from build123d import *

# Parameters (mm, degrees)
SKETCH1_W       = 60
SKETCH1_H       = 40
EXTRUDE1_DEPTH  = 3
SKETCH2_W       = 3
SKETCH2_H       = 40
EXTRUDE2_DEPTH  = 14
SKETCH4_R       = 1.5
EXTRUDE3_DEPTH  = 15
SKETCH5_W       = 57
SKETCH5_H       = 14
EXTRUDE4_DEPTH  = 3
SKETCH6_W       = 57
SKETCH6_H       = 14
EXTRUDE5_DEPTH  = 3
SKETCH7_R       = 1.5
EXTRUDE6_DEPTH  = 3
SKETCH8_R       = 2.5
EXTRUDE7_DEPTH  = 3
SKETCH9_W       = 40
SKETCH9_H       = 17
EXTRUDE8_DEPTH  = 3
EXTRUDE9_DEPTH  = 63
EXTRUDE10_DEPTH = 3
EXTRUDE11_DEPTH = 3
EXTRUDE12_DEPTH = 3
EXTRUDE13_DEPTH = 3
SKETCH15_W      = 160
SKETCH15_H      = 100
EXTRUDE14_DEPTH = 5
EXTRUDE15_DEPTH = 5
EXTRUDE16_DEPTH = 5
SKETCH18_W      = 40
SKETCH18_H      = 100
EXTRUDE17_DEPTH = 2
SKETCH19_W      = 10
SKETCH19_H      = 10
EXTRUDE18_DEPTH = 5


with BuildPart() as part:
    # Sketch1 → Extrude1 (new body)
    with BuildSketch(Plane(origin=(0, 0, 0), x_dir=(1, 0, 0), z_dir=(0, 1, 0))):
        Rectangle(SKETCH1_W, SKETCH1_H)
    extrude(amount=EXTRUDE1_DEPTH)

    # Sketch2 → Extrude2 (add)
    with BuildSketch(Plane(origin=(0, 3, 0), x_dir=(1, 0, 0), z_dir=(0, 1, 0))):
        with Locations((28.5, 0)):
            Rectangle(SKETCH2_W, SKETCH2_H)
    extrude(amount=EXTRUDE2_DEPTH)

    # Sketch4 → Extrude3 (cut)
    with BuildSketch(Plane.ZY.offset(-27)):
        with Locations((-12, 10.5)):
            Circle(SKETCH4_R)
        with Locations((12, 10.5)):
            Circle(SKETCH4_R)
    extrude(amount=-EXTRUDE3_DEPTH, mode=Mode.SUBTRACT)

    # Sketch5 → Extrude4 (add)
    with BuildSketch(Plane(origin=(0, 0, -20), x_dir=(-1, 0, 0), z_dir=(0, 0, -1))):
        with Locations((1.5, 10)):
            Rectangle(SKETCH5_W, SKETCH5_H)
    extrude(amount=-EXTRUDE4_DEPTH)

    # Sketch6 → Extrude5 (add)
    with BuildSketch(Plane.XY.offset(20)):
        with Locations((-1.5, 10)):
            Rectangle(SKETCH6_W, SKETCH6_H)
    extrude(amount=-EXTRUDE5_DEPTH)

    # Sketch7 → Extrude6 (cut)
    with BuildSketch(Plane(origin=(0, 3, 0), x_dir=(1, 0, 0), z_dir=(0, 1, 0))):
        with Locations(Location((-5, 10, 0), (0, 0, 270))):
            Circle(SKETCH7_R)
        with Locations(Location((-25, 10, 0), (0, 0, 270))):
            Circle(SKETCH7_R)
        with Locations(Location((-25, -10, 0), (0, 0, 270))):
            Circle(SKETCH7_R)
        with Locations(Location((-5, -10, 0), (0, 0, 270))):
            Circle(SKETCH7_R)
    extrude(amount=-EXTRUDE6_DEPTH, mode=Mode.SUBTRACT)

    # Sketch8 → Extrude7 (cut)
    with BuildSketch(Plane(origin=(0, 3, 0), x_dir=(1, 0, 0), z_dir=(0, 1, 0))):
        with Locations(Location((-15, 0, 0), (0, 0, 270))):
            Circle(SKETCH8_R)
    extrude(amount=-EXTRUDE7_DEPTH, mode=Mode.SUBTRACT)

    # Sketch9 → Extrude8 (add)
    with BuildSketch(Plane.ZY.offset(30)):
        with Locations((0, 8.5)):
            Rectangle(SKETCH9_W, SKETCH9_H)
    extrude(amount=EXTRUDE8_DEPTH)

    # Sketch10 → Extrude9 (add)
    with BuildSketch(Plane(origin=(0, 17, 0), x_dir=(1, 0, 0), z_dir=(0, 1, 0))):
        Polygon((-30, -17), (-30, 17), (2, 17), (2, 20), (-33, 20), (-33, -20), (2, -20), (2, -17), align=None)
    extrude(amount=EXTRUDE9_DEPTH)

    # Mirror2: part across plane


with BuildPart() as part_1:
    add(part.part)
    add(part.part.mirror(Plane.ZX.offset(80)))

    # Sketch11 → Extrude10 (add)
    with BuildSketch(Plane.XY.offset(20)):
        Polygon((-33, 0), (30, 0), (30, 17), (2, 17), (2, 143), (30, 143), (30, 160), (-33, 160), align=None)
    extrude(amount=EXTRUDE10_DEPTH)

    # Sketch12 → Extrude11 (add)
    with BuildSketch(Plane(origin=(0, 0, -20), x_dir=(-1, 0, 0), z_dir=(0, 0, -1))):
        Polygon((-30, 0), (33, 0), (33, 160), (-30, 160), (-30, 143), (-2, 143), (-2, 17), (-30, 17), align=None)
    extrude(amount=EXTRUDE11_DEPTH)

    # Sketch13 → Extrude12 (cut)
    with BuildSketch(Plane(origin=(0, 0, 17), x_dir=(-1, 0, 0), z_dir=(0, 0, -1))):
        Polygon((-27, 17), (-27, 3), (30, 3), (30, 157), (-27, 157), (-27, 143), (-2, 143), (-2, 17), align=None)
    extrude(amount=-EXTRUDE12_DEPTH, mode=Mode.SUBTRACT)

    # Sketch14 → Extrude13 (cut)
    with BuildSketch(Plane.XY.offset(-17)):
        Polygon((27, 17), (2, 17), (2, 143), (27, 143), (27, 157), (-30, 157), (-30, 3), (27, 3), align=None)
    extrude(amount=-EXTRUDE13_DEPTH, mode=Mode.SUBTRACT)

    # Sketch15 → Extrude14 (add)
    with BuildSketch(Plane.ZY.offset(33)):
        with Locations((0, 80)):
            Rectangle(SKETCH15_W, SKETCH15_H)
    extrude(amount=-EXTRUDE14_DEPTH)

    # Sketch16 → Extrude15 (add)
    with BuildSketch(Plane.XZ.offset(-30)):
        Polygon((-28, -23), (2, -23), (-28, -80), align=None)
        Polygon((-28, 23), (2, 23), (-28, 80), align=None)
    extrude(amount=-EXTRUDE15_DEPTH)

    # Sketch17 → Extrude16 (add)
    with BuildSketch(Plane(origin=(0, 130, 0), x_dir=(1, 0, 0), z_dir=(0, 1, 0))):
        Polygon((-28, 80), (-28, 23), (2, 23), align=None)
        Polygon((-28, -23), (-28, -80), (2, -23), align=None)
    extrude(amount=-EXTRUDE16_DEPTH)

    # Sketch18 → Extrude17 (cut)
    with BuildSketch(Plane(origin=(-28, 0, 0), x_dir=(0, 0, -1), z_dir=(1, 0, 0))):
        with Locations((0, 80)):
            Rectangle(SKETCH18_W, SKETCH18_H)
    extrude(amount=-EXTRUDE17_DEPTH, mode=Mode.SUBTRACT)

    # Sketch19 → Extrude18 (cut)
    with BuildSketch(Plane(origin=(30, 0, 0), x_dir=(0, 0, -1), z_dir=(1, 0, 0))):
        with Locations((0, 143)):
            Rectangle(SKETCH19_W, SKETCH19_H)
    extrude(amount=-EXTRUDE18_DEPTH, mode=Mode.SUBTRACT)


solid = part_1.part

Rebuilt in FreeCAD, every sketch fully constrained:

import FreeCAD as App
import Part
import Sketcher
from FreeCAD import Vector


def add_polygon(sketch, points):
    """Adds a closed chain of lines whose ends are joined by coincident constraints."""
    first, n = sketch.GeometryCount, len(points)
    for a, b in zip(points, points[1:] + points[:1]):
        sketch.addGeometry(Part.LineSegment(App.Vector(*a, 0), App.Vector(*b, 0)), False)
    for i in range(n):
        sketch.addConstraint(Sketcher.Constraint("Coincident", first + i, 2, first + (i + 1) % n, 1))

doc = App.newDocument("Part")
body = doc.addObject("PartDesign::Body", "Body")

sketch1 = doc.addObject("Sketcher::SketchObject", "Sketch")
body.addObject(sketch1)
sketch1.AttachmentSupport = (doc.XZ_Plane, [""])
sketch1.MapMode = "FlatFace"
add_polygon(sketch1, [(-30, -20), (-30, 20), (30, 20), (30, -20)])
sketch1.addConstraint([
    Sketcher.Constraint("Vertical", 0),
    Sketcher.Constraint("Horizontal", 1),
    Sketcher.Constraint("Vertical", 2),
    Sketcher.Constraint("Horizontal", 3),
    Sketcher.Constraint("Symmetric", 0, 2, 2, 2, -1, 1),
    Sketcher.Constraint("DistanceX", 1, 1, 1, 2, 60.0),
    Sketcher.Constraint("DistanceY", 0, 1, 0, 2, 40.0),
])
pad1 = doc.addObject("PartDesign::Pad", "Pad")
body.addObject(pad1)
pad1.Profile = sketch1
pad1.Length = 3
pad1.Reversed = True

sketch2 = doc.addObject("Sketcher::SketchObject", "Sketch001")
body.addObject(sketch2)
sketch2.AttachmentSupport = (doc.XZ_Plane, [""])
sketch2.MapMode = "FlatFace"
sketch2.AttachmentOffset = App.Placement(Vector(0, 0, -3), App.Rotation())
add_polygon(sketch2, [(27, -20), (27, 20), (30, 20), (30, -20)])
sketch2.addConstraint([
    Sketcher.Constraint("Vertical", 0),
    Sketcher.Constraint("Horizontal", 1),
    Sketcher.Constraint("Vertical", 2),
    Sketcher.Constraint("Horizontal", 3),
    Sketcher.Constraint("DistanceX", 1, 1, 1, 2, 3.0),
    Sketcher.Constraint("DistanceY", 0, 1, 0, 2, 40.0),
    Sketcher.Constraint("DistanceX", -1, 1, 0, 2, 27.0),
    Sketcher.Constraint("DistanceY", -1, 1, 0, 2, 20.0),
])
pad2 = doc.addObject("PartDesign::Pad", "Pad001")
body.addObject(pad2)
pad2.Profile = sketch2
pad2.Length = 14
pad2.Reversed = True

sketch3 = doc.addObject("Sketcher::SketchObject", "Sketch002")
body.addObject(sketch3)
sketch3.AttachmentSupport = (doc.YZ_Plane, [""])
sketch3.MapMode = "FlatFace"
sketch3.AttachmentOffset = App.Placement(Vector(0, 0, 27), App.Rotation())
sketch3.addGeometry([
    Part.Circle(Vector(10.5, -12, 0), Vector(0, 0, 1), 1.5),
    Part.Circle(Vector(10.5, 12, 0), Vector(0, 0, 1), 1.5),
], False)
sketch3.addConstraint([
    Sketcher.Constraint("Equal", 0, 1),
    Sketcher.Constraint("Symmetric", 0, 3, 1, 3, -1),
    Sketcher.Constraint("Diameter", 0, 3.0),
    Sketcher.Constraint("DistanceY", 0, 3, -1, 1, 12.0),
    Sketcher.Constraint("DistanceX", -1, 1, 0, 3, 10.5),
])
pocket1 = doc.addObject("PartDesign::Pocket", "Pocket")
body.addObject(pocket1)
pocket1.Profile = sketch3
pocket1.Length = 15
pocket1.Reversed = True

sketch4 = doc.addObject("Sketcher::SketchObject", "Sketch003")
body.addObject(sketch4)
sketch4.AttachmentSupport = (doc.XY_Plane, [""])
sketch4.MapMode = "FlatFace"
sketch4.AttachmentOffset = App.Placement(Vector(0, 0, -20), App.Rotation())
add_polygon(sketch4, [(27, 17), (27, 3), (-30, 3), (-30, 17)])
sketch4.addConstraint([
    Sketcher.Constraint("Vertical", 0),
    Sketcher.Constraint("Horizontal", 1),
    Sketcher.Constraint("Vertical", 2),
    Sketcher.Constraint("Horizontal", 3),
    Sketcher.Constraint("DistanceX", 1, 2, 1, 1, 57.0),
    Sketcher.Constraint("DistanceY", 0, 2, 0, 1, 14.0),
    Sketcher.Constraint("DistanceX", -1, 1, 0, 2, 27.0),
    Sketcher.Constraint("DistanceY", -1, 1, 0, 2, 3.0),
])
pad3 = doc.addObject("PartDesign::Pad", "Pad002")
body.addObject(pad3)
pad3.Profile = sketch4
pad3.Length = 3

sketch5 = doc.addObject("Sketcher::SketchObject", "Sketch004")
body.addObject(sketch5)
sketch5.AttachmentSupport = (doc.XY_Plane, [""])
sketch5.MapMode = "FlatFace"
sketch5.AttachmentOffset = App.Placement(Vector(0, 0, 20), App.Rotation())
add_polygon(sketch5, [(-30, 17), (-30, 3), (27, 3), (27, 17)])
sketch5.addConstraint([
    Sketcher.Constraint("Vertical", 0),
    Sketcher.Constraint("Horizontal", 1),
    Sketcher.Constraint("Vertical", 2),
    Sketcher.Constraint("Horizontal", 3),
    Sketcher.Constraint("DistanceX", 1, 1, 1, 2, 57.0),
    Sketcher.Constraint("DistanceY", 0, 2, 0, 1, 14.0),
    Sketcher.Constraint("DistanceX", 0, 2, -1, 1, 30.0),
    Sketcher.Constraint("DistanceY", -1, 1, 0, 2, 3.0),
])
pad4 = doc.addObject("PartDesign::Pad", "Pad003")
body.addObject(pad4)
pad4.Profile = sketch5
pad4.Length = 3
pad4.Reversed = True

sketch6 = doc.addObject("Sketcher::SketchObject", "Sketch005")
body.addObject(sketch6)
sketch6.AttachmentSupport = (doc.XZ_Plane, [""])
sketch6.MapMode = "FlatFace"
sketch6.AttachmentOffset = App.Placement(Vector(0, 0, -3), App.Rotation())
sketch6.addGeometry([
    Part.Circle(Vector(-5, -10, 0), Vector(0, 0, 1), 1.5),
    Part.Circle(Vector(-25, -10, 0), Vector(0, 0, 1), 1.5),
    Part.Circle(Vector(-25, 10, 0), Vector(0, 0, 1), 1.5),
    Part.Circle(Vector(-5, 10, 0), Vector(0, 0, 1), 1.5),
], False)
sketch6.addConstraint([
    Sketcher.Constraint("Equal", 0, 1),
    Sketcher.Constraint("Equal", 1, 2),
    Sketcher.Constraint("Equal", 2, 3),
    Sketcher.Constraint("Symmetric", 1, 3, 2, 3, -1),
    Sketcher.Constraint("Symmetric", 0, 3, 3, 3, -1),
    Sketcher.Constraint("Horizontal", 0, 3, 1, 3),
    Sketcher.Constraint("Diameter", 0, 3.0),
    Sketcher.Constraint("DistanceX", 0, 3, -1, 1, 5.0),
    Sketcher.Constraint("DistanceY", 0, 3, -1, 1, 10.0),
    Sketcher.Constraint("DistanceX", 1, 3, -1, 1, 25.0),
])
pocket2 = doc.addObject("PartDesign::Pocket", "Pocket001")
body.addObject(pocket2)
pocket2.Profile = sketch6
pocket2.Length = 3
pocket2.Reversed = True

sketch7 = doc.addObject("Sketcher::SketchObject", "Sketch006")
body.addObject(sketch7)
sketch7.AttachmentSupport = (doc.XZ_Plane, [""])
sketch7.MapMode = "FlatFace"
sketch7.AttachmentOffset = App.Placement(Vector(0, 0, -3), App.Rotation())
sketch7.addGeometry(Part.Circle(Vector(-15, 0, 0), Vector(0, 0, 1), 2.5), False)
sketch7.addConstraint([
    Sketcher.Constraint("PointOnObject", 0, 3, -1),
    Sketcher.Constraint("Diameter", 0, 5.0),
    Sketcher.Constraint("DistanceX", 0, 3, -1, 1, 15.0),
])
pocket3 = doc.addObject("PartDesign::Pocket", "Pocket002")
body.addObject(pocket3)
pocket3.Profile = sketch7
pocket3.Length = 3
pocket3.Reversed = True

sketch8 = doc.addObject("Sketcher::SketchObject", "Sketch007")
body.addObject(sketch8)
sketch8.AttachmentSupport = (doc.YZ_Plane, [""])
sketch8.MapMode = "FlatFace"
sketch8.AttachmentOffset = App.Placement(Vector(0, 0, -30), App.Rotation())
add_polygon(sketch8, [(17, -20), (0, -20), (0, 20), (17, 20)])
sketch8.addConstraint([
    Sketcher.Constraint("Horizontal", 0),
    Sketcher.Constraint("Vertical", 1),
    Sketcher.Constraint("Horizontal", 2),
    Sketcher.Constraint("Vertical", 3),
    Sketcher.Constraint("Symmetric", 0, 2, 1, 2, -1, 1),
    Sketcher.Constraint("DistanceX", 0, 2, 0, 1, 17.0),
    Sketcher.Constraint("DistanceY", 1, 1, 1, 2, 40.0),
])
pad5 = doc.addObject("PartDesign::Pad", "Pad004")
body.addObject(pad5)
pad5.Profile = sketch8
pad5.Length = 3
pad5.Reversed = True

sketch9 = doc.addObject("Sketcher::SketchObject", "Sketch008")
body.addObject(sketch9)
sketch9.AttachmentSupport = (doc.XZ_Plane, [""])
sketch9.MapMode = "FlatFace"
sketch9.AttachmentOffset = App.Placement(Vector(0, 0, -17), App.Rotation())
add_polygon(sketch9, [(-30, 17), (-30, -17), (2, -17), (2, -20), (-33, -20), (-33, 20), (2, 20), (2, 17)])
sketch9.addConstraint([
    Sketcher.Constraint("Vertical", 0),
    Sketcher.Constraint("Horizontal", 1),
    Sketcher.Constraint("Vertical", 2),
    Sketcher.Constraint("Horizontal", 3),
    Sketcher.Constraint("Vertical", 4),
    Sketcher.Constraint("Horizontal", 5),
    Sketcher.Constraint("Vertical", 6),
    Sketcher.Constraint("Horizontal", 7),
    Sketcher.Constraint("Symmetric", 2, 2, 5, 2, -1),
    Sketcher.Constraint("Equal", 2, 6),
    Sketcher.Constraint("DistanceX", 1, 1, 1, 2, 32.0),
    Sketcher.Constraint("DistanceX", 3, 2, 3, 1, 35.0),
    Sketcher.Constraint("DistanceY", 0, 2, 0, 1, 34.0),
    Sketcher.Constraint("DistanceY", 2, 2, 2, 1, 3.0),
    Sketcher.Constraint("DistanceX", 0, 2, -1, 1, 30.0),
])
pad6 = doc.addObject("PartDesign::Pad", "Pad005")
body.addObject(pad6)
pad6.Profile = sketch9
pad6.Length = 63
pad6.Reversed = True
body2 = doc.addObject("PartDesign::Body", "Body001")
doc.recompute()

body2.BaseFeature = body
doc.recompute()

mirroring = doc.addObject("Part::Mirroring", "Mirroring")
mirroring.Source = body
mirroring.Base = Vector(0, 80, 0)
mirroring.Normal = Vector(0, 1, 0)
body3 = doc.addObject("PartDesign::Body", "Body002")
body3.BaseFeature = mirroring
boolean = doc.addObject("PartDesign::Boolean", "Boolean")
body2.addObject(boolean)
boolean.Type = "Fuse"
boolean.addObjects([body3])
doc.recompute()

sketch10 = doc.addObject("Sketcher::SketchObject", "Sketch009")
body2.addObject(sketch10)
sketch10.AttachmentSupport = (doc.getObject("XY_Plane001"), [""])
sketch10.MapMode = "FlatFace"
sketch10.AttachmentOffset = App.Placement(Vector(0, 0, 20), App.Rotation())
add_polygon(sketch10, [(-33, 0), (30, 0), (30, 17), (2, 17), (2, 143), (30, 143), (30, 160), (-33, 160)])
sketch10.addConstraint([
    Sketcher.Constraint("Horizontal", 0),
    Sketcher.Constraint("Vertical", 1),
    Sketcher.Constraint("Horizontal", 2),
    Sketcher.Constraint("Vertical", 3),
    Sketcher.Constraint("Horizontal", 4),
    Sketcher.Constraint("Vertical", 5),
    Sketcher.Constraint("Horizontal", 6),
    Sketcher.Constraint("Vertical", 7),
    Sketcher.Constraint("PointOnObject", 0, 2, -1),
    Sketcher.Constraint("Vertical", 1, 2, 4, 2),
    Sketcher.Constraint("Equal", 1, 5),
    Sketcher.Constraint("DistanceX", 0, 1, 0, 2, 63.0),
    Sketcher.Constraint("DistanceX", 2, 2, 2, 1, 28.0),
    Sketcher.Constraint("DistanceY", 1, 1, 1, 2, 17.0),
    Sketcher.Constraint("DistanceY", 3, 1, 3, 2, 126.0),
    Sketcher.Constraint("DistanceX", -1, 1, 0, 2, 30.0),
])
pad7 = doc.addObject("PartDesign::Pad", "Pad006")
body2.addObject(pad7)
pad7.Profile = sketch10
pad7.Length = 3

sketch11 = doc.addObject("Sketcher::SketchObject", "Sketch010")
body2.addObject(sketch11)
sketch11.AttachmentSupport = (doc.getObject("XY_Plane001"), [""])
sketch11.MapMode = "FlatFace"
sketch11.AttachmentOffset = App.Placement(Vector(0, 0, -20), App.Rotation())
add_polygon(sketch11, [(30, 0), (-33, 0), (-33, 160), (30, 160), (30, 143), (2, 143), (2, 17), (30, 17)])
sketch11.addConstraint([
    Sketcher.Constraint("Horizontal", 0),
    Sketcher.Constraint("Vertical", 1),
    Sketcher.Constraint("Horizontal", 2),
    Sketcher.Constraint("Vertical", 3),
    Sketcher.Constraint("Horizontal", 4),
    Sketcher.Constraint("Vertical", 5),
    Sketcher.Constraint("Horizontal", 6),
    Sketcher.Constraint("Vertical", 7),
    Sketcher.Constraint("PointOnObject", 0, 2, -1),
    Sketcher.Constraint("Vertical", 3, 2, 6, 2),
    Sketcher.Constraint("Equal", 3, 7),
    Sketcher.Constraint("DistanceX", 0, 2, 0, 1, 63.0),
    Sketcher.Constraint("DistanceX", 4, 2, 4, 1, 28.0),
    Sketcher.Constraint("DistanceY", 1, 1, 1, 2, 160.0),
    Sketcher.Constraint("DistanceY", 3, 2, 3, 1, 17.0),
    Sketcher.Constraint("DistanceX", 0, 2, -1, 1, 33.0),
])
pad8 = doc.addObject("PartDesign::Pad", "Pad007")
body2.addObject(pad8)
pad8.Profile = sketch11
pad8.Length = 3
pad8.Reversed = True

sketch12 = doc.addObject("Sketcher::SketchObject", "Sketch011")
body2.addObject(sketch12)
sketch12.AttachmentSupport = (doc.getObject("XY_Plane001"), [""])
sketch12.MapMode = "FlatFace"
sketch12.AttachmentOffset = App.Placement(Vector(0, 0, 17), App.Rotation())
add_polygon(sketch12, [(27, 17), (27, 3), (-30, 3), (-30, 157), (27, 157), (27, 143), (2, 143), (2, 17)])
sketch12.addConstraint([
    Sketcher.Constraint("Vertical", 0),
    Sketcher.Constraint("Horizontal", 1),
    Sketcher.Constraint("Vertical", 2),
    Sketcher.Constraint("Horizontal", 3),
    Sketcher.Constraint("Vertical", 4),
    Sketcher.Constraint("Horizontal", 5),
    Sketcher.Constraint("Vertical", 6),
    Sketcher.Constraint("Horizontal", 7),
    Sketcher.Constraint("Vertical", 0, 2, 3, 2),
    Sketcher.Constraint("Equal", 0, 4),
    Sketcher.Constraint("DistanceX", 1, 2, 1, 1, 57.0),
    Sketcher.Constraint("DistanceX", 5, 2, 5, 1, 25.0),
    Sketcher.Constraint("DistanceY", 0, 2, 0, 1, 14.0),
    Sketcher.Constraint("DistanceY", 2, 1, 2, 2, 154.0),
    Sketcher.Constraint("DistanceX", -1, 1, 0, 2, 27.0),
    Sketcher.Constraint("DistanceY", -1, 1, 0, 2, 3.0),
])
pocket4 = doc.addObject("PartDesign::Pocket", "Pocket003")
body2.addObject(pocket4)
pocket4.Profile = sketch12
pocket4.Length = 3
pocket4.Reversed = True

sketch13 = doc.addObject("Sketcher::SketchObject", "Sketch012")
body2.addObject(sketch13)
sketch13.AttachmentSupport = (doc.getObject("XY_Plane001"), [""])
sketch13.MapMode = "FlatFace"
sketch13.AttachmentOffset = App.Placement(Vector(0, 0, -17), App.Rotation())
add_polygon(sketch13, [(27, 17), (2, 17), (2, 143), (27, 143), (27, 157), (-30, 157), (-30, 3), (27, 3)])
sketch13.addConstraint([
    Sketcher.Constraint("Horizontal", 0),
    Sketcher.Constraint("Vertical", 1),
    Sketcher.Constraint("Horizontal", 2),
    Sketcher.Constraint("Vertical", 3),
    Sketcher.Constraint("Horizontal", 4),
    Sketcher.Constraint("Vertical", 5),
    Sketcher.Constraint("Horizontal", 6),
    Sketcher.Constraint("Vertical", 7),
    Sketcher.Constraint("Vertical", 3, 2, 6, 2),
    Sketcher.Constraint("Equal", 3, 7),
    Sketcher.Constraint("DistanceX", 0, 2, 0, 1, 25.0),
    Sketcher.Constraint("DistanceX", 4, 2, 4, 1, 57.0),
    Sketcher.Constraint("DistanceY", 1, 1, 1, 2, 126.0),
    Sketcher.Constraint("DistanceY", 3, 1, 3, 2, 14.0),
    Sketcher.Constraint("DistanceX", -1, 1, 0, 2, 2.0),
    Sketcher.Constraint("DistanceY", -1, 1, 0, 2, 17.0),
])
pocket5 = doc.addObject("PartDesign::Pocket", "Pocket004")
body2.addObject(pocket5)
pocket5.Profile = sketch13
pocket5.Length = 3

sketch14 = doc.addObject("Sketcher::SketchObject", "Sketch013")
body2.addObject(sketch14)
sketch14.AttachmentSupport = (doc.getObject("YZ_Plane001"), [""])
sketch14.MapMode = "FlatFace"
sketch14.AttachmentOffset = App.Placement(Vector(0, 0, -33), App.Rotation())
add_polygon(sketch14, [(130, -80), (30, -80), (30, 80), (130, 80)])
sketch14.addConstraint([
    Sketcher.Constraint("Horizontal", 0),
    Sketcher.Constraint("Vertical", 1),
    Sketcher.Constraint("Horizontal", 2),
    Sketcher.Constraint("Vertical", 3),
    Sketcher.Constraint("DistanceX", 0, 2, 0, 1, 100.0),
    Sketcher.Constraint("DistanceY", 1, 1, 1, 2, 160.0),
    Sketcher.Constraint("DistanceX", -1, 1, 0, 2, 30.0),
    Sketcher.Constraint("DistanceY", 0, 2, -1, 1, 80.0),
])
pad9 = doc.addObject("PartDesign::Pad", "Pad008")
body2.addObject(pad9)
pad9.Profile = sketch14
pad9.Length = 5

sketch15 = doc.addObject("Sketcher::SketchObject", "Sketch014")
body2.addObject(sketch15)
sketch15.AttachmentSupport = (doc.getObject("XZ_Plane001"), [""])
sketch15.MapMode = "FlatFace"
sketch15.AttachmentOffset = App.Placement(Vector(0, 0, -30), App.Rotation())
add_polygon(sketch15, [(2, -23), (-28, -23), (-28, -80)])
add_polygon(sketch15, [(-28, 23), (2, 23), (-28, 80)])
sketch15.addConstraint([
    Sketcher.Constraint("Horizontal", 0),
    Sketcher.Constraint("Vertical", 1),
    Sketcher.Constraint("Horizontal", 3),
    Sketcher.Constraint("Vertical", 5),
    Sketcher.Constraint("Symmetric", 2, 2, 3, 2, -1),
    Sketcher.Constraint("Symmetric", 1, 2, 4, 2, -1),
    Sketcher.Constraint("DistanceX", 0, 2, 0, 1, 30.0),
    Sketcher.Constraint("DistanceY", 1, 2, 1, 1, 57.0),
    Sketcher.Constraint("DistanceX", 0, 2, -1, 1, 28.0),
    Sketcher.Constraint("DistanceY", 0, 2, -1, 1, 23.0),
])
pad10 = doc.addObject("PartDesign::Pad", "Pad009")
body2.addObject(pad10)
pad10.Profile = sketch15
pad10.Length = 5
pad10.Reversed = True

sketch16 = doc.addObject("Sketcher::SketchObject", "Sketch015")
body2.addObject(sketch16)
sketch16.AttachmentSupport = (doc.getObject("XZ_Plane001"), [""])
sketch16.MapMode = "FlatFace"
sketch16.AttachmentOffset = App.Placement(Vector(0, 0, -130), App.Rotation())
add_polygon(sketch16, [(-28, -80), (-28, -23), (2, -23)])
add_polygon(sketch16, [(-28, 23), (-28, 80), (2, 23)])
sketch16.addConstraint([
    Sketcher.Constraint("Vertical", 0),
    Sketcher.Constraint("Horizontal", 1),
    Sketcher.Constraint("Vertical", 3),
    Sketcher.Constraint("Horizontal", 5),
    Sketcher.Constraint("Symmetric", 2, 2, 3, 2, -1),
    Sketcher.Constraint("Symmetric", 1, 2, 4, 2, -1),
    Sketcher.Constraint("DistanceX", 1, 1, 1, 2, 30.0),
    Sketcher.Constraint("DistanceY", 0, 1, 0, 2, 57.0),
    Sketcher.Constraint("DistanceX", 0, 2, -1, 1, 28.0),
    Sketcher.Constraint("DistanceY", 0, 2, -1, 1, 23.0),
])
pad11 = doc.addObject("PartDesign::Pad", "Pad010")
body2.addObject(pad11)
pad11.Profile = sketch16
pad11.Length = 5

sketch17 = doc.addObject("Sketcher::SketchObject", "Sketch016")
body2.addObject(sketch17)
sketch17.AttachmentSupport = (doc.getObject("YZ_Plane001"), [""])
sketch17.MapMode = "FlatFace"
sketch17.AttachmentOffset = App.Placement(Vector(0, 0, -28), App.Rotation())
add_polygon(sketch17, [(130, 20), (30, 20), (30, -20), (130, -20)])
sketch17.addConstraint([
    Sketcher.Constraint("Horizontal", 0),
    Sketcher.Constraint("Vertical", 1),
    Sketcher.Constraint("Horizontal", 2),
    Sketcher.Constraint("Vertical", 3),
    Sketcher.Constraint("DistanceX", 0, 2, 0, 1, 100.0),
    Sketcher.Constraint("DistanceY", 1, 2, 1, 1, 40.0),
    Sketcher.Constraint("DistanceX", -1, 1, 0, 2, 30.0),
    Sketcher.Constraint("DistanceY", -1, 1, 0, 2, 20.0),
])
pocket6 = doc.addObject("PartDesign::Pocket", "Pocket005")
body2.addObject(pocket6)
pocket6.Profile = sketch17
pocket6.Length = 2

sketch18 = doc.addObject("Sketcher::SketchObject", "Sketch017")
body2.addObject(sketch18)
sketch18.AttachmentSupport = (doc.getObject("YZ_Plane001"), [""])
sketch18.MapMode = "FlatFace"
sketch18.AttachmentOffset = App.Placement(Vector(0, 0, 30), App.Rotation())
add_polygon(sketch18, [(148, 5), (138, 5), (138, -5), (148, -5)])
sketch18.addConstraint([
    Sketcher.Constraint("Horizontal", 0),
    Sketcher.Constraint("Vertical", 1),
    Sketcher.Constraint("Horizontal", 2),
    Sketcher.Constraint("Vertical", 3),
    Sketcher.Constraint("Equal", 2, 1),
    Sketcher.Constraint("DistanceX", 0, 2, 0, 1, 10.0),
    Sketcher.Constraint("DistanceX", -1, 1, 0, 2, 138.0),
    Sketcher.Constraint("DistanceY", -1, 1, 0, 2, 5.0),
])
pocket7 = doc.addObject("PartDesign::Pocket", "Pocket006")
body2.addObject(pocket7)
pocket7.Profile = sketch18
pocket7.Length = 5
mirroring.Visibility = False

doc.recompute()
